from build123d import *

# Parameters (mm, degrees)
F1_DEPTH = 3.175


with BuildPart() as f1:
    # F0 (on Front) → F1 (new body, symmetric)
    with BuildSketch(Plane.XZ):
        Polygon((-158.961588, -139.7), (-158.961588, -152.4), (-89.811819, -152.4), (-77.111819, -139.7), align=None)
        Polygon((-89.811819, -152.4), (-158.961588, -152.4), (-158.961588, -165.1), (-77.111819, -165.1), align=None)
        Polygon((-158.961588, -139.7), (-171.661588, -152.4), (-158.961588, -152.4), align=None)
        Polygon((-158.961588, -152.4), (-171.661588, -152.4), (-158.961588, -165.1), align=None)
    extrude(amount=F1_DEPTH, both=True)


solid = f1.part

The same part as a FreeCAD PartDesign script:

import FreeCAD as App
import Part
import Sketcher
Q = App.Units.Quantity


def add_polygon(sketch, points):
    """Adds a closed chain of lines whose ends are joined by coincident constraints."""
    first, n = sketch.GeometryCount, len(points)
    for a, b in zip(points, points[1:] + points[:1]):
        sketch.addGeometry(Part.LineSegment(App.Vector(*a, 0), App.Vector(*b, 0)), False)
    for i in range(n):
        sketch.addConstraint(Sketcher.Constraint("Coincident", first + i, 2, first + (i + 1) % n, 1))

doc = App.newDocument("Part")
params = doc.addObject("Spreadsheet::Sheet", "Params")
for row, (alias, value) in enumerate([
    ("pad1_length", "0.25 in"),
], start=1):
    params.set(f"A{row}", alias)
    params.set(f"B{row}", "=" + value)
    params.setAlias(f"B{row}", alias)

body = doc.addObject("PartDesign::Body", "Body")

sketch1 = body.newObject("Sketcher::SketchObject", "Sketch")
sketch1.AttachmentSupport = (doc.getObject("XZ_Plane"), [""])
sketch1.MapMode = "FlatFace"
add_polygon(sketch1, [(-159, -165), (-77, -165), (-90, -152), (-77, -140), (-159, -140), (-172, -152)])
sketch1.addConstraint([
    Sketcher.Constraint("Horizontal", 0),
    Sketcher.Constraint("Horizontal", 3),
    Sketcher.Constraint("Perpendicular", 1, 2),
    Sketcher.Constraint("Parallel", 2, 4),
    Sketcher.Constraint("Perpendicular", 4, 5),
    Sketcher.Constraint("Horizontal", 1, 2, 4, 2),
    Sketcher.Constraint("Vertical", 0, 2, 2, 2),
    Sketcher.Constraint("Equal", 1, 2),
    Sketcher.Constraint("DistanceY", 1, 2, -1, 1, Q("6 in")),
    Sketcher.Constraint("DistanceY", 0, 2, 2, 2, Q("1 in")),
    Sketcher.Constraint("DistanceX", 0, 1, 0, 2, Q("81.849769 mm")),
    Sketcher.Constraint("DistanceX", 0, 2, -1, 1, Q("77.111819 mm")),
])
pad1 = body.newObject("PartDesign::Pad", "Pad")
pad1.Profile = sketch1
pad1.setExpression("Length", "Params.pad1_length")
pad1.Midplane = True

doc.recompute()
